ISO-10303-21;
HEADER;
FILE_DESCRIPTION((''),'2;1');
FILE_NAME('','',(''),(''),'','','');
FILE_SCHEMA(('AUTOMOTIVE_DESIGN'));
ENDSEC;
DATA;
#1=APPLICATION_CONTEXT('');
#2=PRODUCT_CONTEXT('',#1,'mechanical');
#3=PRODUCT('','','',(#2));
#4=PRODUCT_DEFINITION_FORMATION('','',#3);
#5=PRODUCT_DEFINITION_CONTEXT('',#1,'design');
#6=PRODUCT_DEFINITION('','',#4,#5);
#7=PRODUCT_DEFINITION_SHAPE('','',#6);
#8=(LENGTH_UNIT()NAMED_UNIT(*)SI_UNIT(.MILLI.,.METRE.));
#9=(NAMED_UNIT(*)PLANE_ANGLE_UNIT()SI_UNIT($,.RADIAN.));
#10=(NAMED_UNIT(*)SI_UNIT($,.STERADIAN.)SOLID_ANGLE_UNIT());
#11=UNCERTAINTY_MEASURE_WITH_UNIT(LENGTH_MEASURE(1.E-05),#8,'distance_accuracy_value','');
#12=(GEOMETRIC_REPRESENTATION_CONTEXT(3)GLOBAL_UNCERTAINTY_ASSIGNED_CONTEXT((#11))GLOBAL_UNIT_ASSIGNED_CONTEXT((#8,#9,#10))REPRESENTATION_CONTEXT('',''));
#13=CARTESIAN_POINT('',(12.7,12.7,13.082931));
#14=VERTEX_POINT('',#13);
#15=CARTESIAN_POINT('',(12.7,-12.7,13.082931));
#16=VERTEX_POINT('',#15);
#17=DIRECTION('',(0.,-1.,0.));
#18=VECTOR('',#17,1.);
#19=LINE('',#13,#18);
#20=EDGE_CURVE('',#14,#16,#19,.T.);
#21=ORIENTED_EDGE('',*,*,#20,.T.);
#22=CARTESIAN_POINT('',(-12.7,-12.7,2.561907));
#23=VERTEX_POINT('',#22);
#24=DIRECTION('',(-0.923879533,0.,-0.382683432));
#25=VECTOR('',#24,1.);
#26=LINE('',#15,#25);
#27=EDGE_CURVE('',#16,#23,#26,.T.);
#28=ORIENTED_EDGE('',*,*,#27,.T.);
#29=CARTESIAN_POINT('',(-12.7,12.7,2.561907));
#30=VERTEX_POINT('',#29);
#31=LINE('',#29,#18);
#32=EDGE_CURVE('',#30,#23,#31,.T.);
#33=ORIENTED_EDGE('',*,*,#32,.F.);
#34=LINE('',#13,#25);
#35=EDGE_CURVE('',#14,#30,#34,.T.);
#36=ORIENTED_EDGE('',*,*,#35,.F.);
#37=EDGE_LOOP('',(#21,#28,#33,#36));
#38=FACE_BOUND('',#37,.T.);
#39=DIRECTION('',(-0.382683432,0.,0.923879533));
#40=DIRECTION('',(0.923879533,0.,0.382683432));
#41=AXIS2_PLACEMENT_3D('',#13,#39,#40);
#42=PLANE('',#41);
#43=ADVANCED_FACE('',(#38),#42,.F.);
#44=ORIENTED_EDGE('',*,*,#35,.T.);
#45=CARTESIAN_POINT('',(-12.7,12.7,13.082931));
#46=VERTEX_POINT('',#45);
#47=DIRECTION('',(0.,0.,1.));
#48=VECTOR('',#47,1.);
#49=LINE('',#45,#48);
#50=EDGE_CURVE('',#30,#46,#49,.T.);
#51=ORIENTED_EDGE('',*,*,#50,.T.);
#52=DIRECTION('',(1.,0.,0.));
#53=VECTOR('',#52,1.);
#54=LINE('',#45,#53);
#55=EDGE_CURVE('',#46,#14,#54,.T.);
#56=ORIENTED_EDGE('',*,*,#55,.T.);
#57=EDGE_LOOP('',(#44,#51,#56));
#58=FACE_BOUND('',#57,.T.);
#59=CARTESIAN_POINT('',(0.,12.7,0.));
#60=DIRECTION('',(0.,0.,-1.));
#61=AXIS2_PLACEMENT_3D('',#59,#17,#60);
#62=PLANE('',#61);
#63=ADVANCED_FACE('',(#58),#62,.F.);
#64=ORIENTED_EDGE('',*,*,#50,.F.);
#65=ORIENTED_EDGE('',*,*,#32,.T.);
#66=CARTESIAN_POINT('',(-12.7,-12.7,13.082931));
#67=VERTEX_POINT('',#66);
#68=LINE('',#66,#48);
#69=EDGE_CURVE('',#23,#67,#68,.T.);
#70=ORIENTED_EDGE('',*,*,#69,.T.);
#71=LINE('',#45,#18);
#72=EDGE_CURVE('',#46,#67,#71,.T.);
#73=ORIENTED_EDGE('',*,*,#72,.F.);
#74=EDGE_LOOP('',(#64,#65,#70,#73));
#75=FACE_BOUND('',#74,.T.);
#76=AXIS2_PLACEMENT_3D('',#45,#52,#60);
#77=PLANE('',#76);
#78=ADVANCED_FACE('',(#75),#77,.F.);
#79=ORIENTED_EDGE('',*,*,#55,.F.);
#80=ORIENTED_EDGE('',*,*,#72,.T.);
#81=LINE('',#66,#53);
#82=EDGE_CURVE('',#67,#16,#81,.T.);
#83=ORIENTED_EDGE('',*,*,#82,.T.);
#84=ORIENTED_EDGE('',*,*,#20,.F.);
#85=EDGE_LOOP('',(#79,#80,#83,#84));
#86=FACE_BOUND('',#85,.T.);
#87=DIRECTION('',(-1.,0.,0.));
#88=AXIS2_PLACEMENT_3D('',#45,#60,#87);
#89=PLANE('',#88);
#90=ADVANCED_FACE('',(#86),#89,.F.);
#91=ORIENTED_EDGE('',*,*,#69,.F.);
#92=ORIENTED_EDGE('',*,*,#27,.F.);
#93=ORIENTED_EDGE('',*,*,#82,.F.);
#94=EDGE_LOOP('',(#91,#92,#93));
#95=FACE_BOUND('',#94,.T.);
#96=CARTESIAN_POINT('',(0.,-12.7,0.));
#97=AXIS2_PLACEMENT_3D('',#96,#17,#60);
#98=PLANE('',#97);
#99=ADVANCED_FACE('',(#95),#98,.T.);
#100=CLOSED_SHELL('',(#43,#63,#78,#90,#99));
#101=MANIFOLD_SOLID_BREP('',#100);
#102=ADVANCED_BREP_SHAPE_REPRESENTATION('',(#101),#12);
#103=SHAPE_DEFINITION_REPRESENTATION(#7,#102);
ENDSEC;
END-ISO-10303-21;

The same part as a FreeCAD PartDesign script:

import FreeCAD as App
import Part
import Sketcher

V = App.Vector
Q = App.Units.Quantity

doc = App.newDocument("Part")
body = doc.addObject("PartDesign::Body", "Body")

# Sketch on XZ plane
sketch1 = doc.addObject("Sketcher::SketchObject", "Sketch")
body.addObject(sketch1)
sketch1.AttachmentSupport = (doc.XZ_Plane, [""])
sketch1.MapMode = "FlatFace"
sketch1.addGeometry(Part.LineSegment(V(12.7, 13.082931, 0), V(-12.7, 2.561907, 0)), False)
sketch1.addGeometry(Part.LineSegment(V(-12.7, 2.561907, 0), V(-12.7, 13.082931, 0)), False)
sketch1.addGeometry(Part.LineSegment(V(-12.7, 13.082931, 0), V(12.7, 13.082931, 0)), False)
sketch1.addConstraint(Sketcher.Constraint("Coincident", 0, 2, 1, 1))
sketch1.addConstraint(Sketcher.Constraint("Coincident", 1, 2, 2, 1))
sketch1.addConstraint(Sketcher.Constraint("Coincident", 2, 2, 0, 1))
sketch1.addConstraint(Sketcher.Constraint("Vertical", 1))
sketch1.addConstraint(Sketcher.Constraint("Horizontal", 2))
sketch1.addConstraint(Sketcher.Constraint("DistanceX", 2, 1, 2, 2, Q("1 in")))
sketch1.addConstraint(Sketcher.Constraint("DistanceX", 0, 2, -1, 1, Q("0.5 in")))
sketch1.addConstraint(Sketcher.Constraint("Angle", 0, Q("-157.5 deg")))
sketch1.addConstraint(Sketcher.Constraint("DistanceY", -1, 1, 1, 2, Q("13.082931 mm")))
pad1 = doc.addObject("PartDesign::Pad", "Pad")
body.addObject(pad1)
pad1.Profile = sketch1
pad1.Length = Q("1 in")
pad1.Midplane = True

doc.recompute()
